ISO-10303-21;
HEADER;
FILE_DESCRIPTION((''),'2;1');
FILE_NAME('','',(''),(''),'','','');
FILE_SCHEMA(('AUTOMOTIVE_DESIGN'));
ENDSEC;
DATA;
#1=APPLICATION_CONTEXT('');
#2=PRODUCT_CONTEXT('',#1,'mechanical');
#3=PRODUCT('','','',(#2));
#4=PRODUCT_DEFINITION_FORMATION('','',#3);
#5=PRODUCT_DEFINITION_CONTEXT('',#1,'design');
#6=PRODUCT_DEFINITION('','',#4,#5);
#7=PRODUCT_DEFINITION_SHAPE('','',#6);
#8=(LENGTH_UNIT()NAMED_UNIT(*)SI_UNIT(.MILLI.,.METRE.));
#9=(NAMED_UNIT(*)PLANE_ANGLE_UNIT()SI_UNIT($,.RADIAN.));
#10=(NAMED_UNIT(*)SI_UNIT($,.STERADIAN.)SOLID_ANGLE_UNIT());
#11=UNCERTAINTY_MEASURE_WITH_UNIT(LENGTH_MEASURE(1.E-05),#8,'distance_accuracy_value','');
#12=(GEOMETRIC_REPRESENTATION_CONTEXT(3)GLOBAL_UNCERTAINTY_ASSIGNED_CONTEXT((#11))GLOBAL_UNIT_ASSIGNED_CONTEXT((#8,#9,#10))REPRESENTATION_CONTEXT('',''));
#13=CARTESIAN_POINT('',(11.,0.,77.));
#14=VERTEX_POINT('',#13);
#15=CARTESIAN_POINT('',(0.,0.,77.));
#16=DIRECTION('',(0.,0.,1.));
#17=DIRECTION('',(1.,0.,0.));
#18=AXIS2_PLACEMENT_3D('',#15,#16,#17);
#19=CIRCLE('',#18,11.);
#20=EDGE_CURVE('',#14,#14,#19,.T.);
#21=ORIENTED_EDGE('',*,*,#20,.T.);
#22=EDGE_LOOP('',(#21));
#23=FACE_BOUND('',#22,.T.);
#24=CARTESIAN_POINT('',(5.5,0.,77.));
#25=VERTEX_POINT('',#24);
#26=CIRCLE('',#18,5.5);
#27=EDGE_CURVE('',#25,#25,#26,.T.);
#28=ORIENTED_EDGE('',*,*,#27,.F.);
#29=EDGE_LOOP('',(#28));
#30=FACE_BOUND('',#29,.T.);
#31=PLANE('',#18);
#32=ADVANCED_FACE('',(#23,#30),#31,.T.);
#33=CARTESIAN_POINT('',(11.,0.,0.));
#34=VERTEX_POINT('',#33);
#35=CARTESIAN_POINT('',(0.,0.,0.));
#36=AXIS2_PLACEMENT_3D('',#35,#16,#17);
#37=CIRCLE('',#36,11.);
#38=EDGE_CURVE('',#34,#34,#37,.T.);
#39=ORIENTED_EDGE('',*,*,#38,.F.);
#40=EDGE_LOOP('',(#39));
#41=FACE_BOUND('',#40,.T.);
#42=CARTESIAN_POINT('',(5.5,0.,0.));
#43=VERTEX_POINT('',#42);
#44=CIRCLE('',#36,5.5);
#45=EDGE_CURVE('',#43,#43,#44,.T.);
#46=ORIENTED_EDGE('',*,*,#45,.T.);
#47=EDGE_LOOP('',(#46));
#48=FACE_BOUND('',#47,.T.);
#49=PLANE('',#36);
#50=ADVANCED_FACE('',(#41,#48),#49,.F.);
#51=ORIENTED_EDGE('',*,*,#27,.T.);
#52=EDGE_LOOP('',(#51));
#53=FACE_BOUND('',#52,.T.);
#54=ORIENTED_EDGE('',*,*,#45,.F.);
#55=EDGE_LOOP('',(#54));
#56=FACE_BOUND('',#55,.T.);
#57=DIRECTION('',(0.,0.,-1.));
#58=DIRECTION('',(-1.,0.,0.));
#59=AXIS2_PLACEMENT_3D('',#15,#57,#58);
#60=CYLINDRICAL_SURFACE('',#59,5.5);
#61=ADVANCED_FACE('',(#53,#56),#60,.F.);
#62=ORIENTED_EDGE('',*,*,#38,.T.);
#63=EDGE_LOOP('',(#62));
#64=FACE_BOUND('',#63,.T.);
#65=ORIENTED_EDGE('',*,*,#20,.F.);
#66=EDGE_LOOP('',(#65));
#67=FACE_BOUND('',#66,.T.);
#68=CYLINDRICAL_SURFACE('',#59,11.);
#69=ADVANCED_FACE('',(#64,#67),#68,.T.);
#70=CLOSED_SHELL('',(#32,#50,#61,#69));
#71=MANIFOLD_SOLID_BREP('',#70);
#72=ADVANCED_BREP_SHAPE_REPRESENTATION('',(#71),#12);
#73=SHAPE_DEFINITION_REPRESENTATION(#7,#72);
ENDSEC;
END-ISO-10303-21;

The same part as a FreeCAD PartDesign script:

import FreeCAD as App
import Part
import Sketcher

doc = App.newDocument("Part")
body = doc.addObject("PartDesign::Body", "Body")

# Sketch on XY plane
sketch1 = body.newObject("Sketcher::SketchObject", "Sketch")
sketch1.AttachmentSupport = (doc.getObject("XY_Plane"), [""])
sketch1.MapMode = "FlatFace"
sketch1.addGeometry([
    Part.Circle(App.Vector(0, 0, 0), App.Vector(0, 0, 1), 11),
    Part.Circle(App.Vector(0, 0, 0), App.Vector(0, 0, 1), 6),
], False)
sketch1.addConstraint([
    Sketcher.Constraint("Coincident", 0, 3, -1, 1),
    Sketcher.Constraint("Coincident", 1, 3, -1, 1),
    Sketcher.Constraint("Diameter", 0, 22.0),
    Sketcher.Constraint("Diameter", 1, 11.0),
])
pad1 = body.newObject("PartDesign::Pad", "Pad")
pad1.Profile = sketch1
pad1.Length = 77

doc.recompute()
